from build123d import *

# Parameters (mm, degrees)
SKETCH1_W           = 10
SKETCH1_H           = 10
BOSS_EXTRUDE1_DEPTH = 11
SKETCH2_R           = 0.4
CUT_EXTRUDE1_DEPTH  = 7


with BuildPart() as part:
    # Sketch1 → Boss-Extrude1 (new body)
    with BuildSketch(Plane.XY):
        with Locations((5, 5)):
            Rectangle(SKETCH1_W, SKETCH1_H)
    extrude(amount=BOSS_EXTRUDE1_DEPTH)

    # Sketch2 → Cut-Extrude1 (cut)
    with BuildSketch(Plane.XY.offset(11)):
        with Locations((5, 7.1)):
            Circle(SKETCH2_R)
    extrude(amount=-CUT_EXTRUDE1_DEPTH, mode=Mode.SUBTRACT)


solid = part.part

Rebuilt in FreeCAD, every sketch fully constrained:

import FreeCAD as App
import Part
import Sketcher

V = App.Vector


def add_polygon(sketch, points):
    """Adds a closed chain of lines whose ends are joined by coincident constraints."""
    first, n = sketch.GeometryCount, len(points)
    for a, b in zip(points, points[1:] + points[:1]):
        sketch.addGeometry(Part.LineSegment(App.Vector(*a, 0), App.Vector(*b, 0)), False)
    for i in range(n):
        sketch.addConstraint(Sketcher.Constraint("Coincident", first + i, 2, first + (i + 1) % n, 1))

doc = App.newDocument("Part")
body = doc.addObject("PartDesign::Body", "Body")

# Sketch on XY plane
sketch1 = body.newObject("Sketcher::SketchObject", "Sketch")
sketch1.AttachmentSupport = (doc.getObject("XY_Plane"), [""])
sketch1.MapMode = "FlatFace"
add_polygon(sketch1, [(0, 10), (0, 0), (10, 0), (10, 10)])  # lines 0-3
sketch1.addConstraint([
    Sketcher.Constraint("Vertical", 0),
    Sketcher.Constraint("Horizontal", 1),
    Sketcher.Constraint("Vertical", 2),
    Sketcher.Constraint("Horizontal", 3),
    Sketcher.Constraint("Coincident", 0, 2, -1, 1),
    Sketcher.Constraint("Equal", 3, 0),
    Sketcher.Constraint("DistanceX", 1, 1, 1, 2, 10.0),
])
pad1 = body.newObject("PartDesign::Pad", "Pad")
pad1.Profile = sketch1
pad1.Length = 11

# Sketch on XY plane
sketch2 = body.newObject("Sketcher::SketchObject", "Sketch001")
sketch2.AttachmentSupport = (doc.getObject("XY_Plane"), [""])
sketch2.MapMode = "FlatFace"
sketch2.AttachmentOffset = App.Placement(V(0, 0, 11), App.Rotation())
sketch2.addGeometry(Part.Circle(V(5, 7.1, 0), V(0, 0, 1), 0.4), False)
sketch2.addConstraint([
    Sketcher.Constraint("Diameter", 0, 0.8),
    Sketcher.Constraint("DistanceX", -1, 1, 0, 3, 5.0),
    Sketcher.Constraint("DistanceY", -1, 1, 0, 3, 7.1),
])
pocket1 = body.newObject("PartDesign::Pocket", "Pocket")
pocket1.Profile = sketch2
pocket1.Length = 7

doc.recompute()
